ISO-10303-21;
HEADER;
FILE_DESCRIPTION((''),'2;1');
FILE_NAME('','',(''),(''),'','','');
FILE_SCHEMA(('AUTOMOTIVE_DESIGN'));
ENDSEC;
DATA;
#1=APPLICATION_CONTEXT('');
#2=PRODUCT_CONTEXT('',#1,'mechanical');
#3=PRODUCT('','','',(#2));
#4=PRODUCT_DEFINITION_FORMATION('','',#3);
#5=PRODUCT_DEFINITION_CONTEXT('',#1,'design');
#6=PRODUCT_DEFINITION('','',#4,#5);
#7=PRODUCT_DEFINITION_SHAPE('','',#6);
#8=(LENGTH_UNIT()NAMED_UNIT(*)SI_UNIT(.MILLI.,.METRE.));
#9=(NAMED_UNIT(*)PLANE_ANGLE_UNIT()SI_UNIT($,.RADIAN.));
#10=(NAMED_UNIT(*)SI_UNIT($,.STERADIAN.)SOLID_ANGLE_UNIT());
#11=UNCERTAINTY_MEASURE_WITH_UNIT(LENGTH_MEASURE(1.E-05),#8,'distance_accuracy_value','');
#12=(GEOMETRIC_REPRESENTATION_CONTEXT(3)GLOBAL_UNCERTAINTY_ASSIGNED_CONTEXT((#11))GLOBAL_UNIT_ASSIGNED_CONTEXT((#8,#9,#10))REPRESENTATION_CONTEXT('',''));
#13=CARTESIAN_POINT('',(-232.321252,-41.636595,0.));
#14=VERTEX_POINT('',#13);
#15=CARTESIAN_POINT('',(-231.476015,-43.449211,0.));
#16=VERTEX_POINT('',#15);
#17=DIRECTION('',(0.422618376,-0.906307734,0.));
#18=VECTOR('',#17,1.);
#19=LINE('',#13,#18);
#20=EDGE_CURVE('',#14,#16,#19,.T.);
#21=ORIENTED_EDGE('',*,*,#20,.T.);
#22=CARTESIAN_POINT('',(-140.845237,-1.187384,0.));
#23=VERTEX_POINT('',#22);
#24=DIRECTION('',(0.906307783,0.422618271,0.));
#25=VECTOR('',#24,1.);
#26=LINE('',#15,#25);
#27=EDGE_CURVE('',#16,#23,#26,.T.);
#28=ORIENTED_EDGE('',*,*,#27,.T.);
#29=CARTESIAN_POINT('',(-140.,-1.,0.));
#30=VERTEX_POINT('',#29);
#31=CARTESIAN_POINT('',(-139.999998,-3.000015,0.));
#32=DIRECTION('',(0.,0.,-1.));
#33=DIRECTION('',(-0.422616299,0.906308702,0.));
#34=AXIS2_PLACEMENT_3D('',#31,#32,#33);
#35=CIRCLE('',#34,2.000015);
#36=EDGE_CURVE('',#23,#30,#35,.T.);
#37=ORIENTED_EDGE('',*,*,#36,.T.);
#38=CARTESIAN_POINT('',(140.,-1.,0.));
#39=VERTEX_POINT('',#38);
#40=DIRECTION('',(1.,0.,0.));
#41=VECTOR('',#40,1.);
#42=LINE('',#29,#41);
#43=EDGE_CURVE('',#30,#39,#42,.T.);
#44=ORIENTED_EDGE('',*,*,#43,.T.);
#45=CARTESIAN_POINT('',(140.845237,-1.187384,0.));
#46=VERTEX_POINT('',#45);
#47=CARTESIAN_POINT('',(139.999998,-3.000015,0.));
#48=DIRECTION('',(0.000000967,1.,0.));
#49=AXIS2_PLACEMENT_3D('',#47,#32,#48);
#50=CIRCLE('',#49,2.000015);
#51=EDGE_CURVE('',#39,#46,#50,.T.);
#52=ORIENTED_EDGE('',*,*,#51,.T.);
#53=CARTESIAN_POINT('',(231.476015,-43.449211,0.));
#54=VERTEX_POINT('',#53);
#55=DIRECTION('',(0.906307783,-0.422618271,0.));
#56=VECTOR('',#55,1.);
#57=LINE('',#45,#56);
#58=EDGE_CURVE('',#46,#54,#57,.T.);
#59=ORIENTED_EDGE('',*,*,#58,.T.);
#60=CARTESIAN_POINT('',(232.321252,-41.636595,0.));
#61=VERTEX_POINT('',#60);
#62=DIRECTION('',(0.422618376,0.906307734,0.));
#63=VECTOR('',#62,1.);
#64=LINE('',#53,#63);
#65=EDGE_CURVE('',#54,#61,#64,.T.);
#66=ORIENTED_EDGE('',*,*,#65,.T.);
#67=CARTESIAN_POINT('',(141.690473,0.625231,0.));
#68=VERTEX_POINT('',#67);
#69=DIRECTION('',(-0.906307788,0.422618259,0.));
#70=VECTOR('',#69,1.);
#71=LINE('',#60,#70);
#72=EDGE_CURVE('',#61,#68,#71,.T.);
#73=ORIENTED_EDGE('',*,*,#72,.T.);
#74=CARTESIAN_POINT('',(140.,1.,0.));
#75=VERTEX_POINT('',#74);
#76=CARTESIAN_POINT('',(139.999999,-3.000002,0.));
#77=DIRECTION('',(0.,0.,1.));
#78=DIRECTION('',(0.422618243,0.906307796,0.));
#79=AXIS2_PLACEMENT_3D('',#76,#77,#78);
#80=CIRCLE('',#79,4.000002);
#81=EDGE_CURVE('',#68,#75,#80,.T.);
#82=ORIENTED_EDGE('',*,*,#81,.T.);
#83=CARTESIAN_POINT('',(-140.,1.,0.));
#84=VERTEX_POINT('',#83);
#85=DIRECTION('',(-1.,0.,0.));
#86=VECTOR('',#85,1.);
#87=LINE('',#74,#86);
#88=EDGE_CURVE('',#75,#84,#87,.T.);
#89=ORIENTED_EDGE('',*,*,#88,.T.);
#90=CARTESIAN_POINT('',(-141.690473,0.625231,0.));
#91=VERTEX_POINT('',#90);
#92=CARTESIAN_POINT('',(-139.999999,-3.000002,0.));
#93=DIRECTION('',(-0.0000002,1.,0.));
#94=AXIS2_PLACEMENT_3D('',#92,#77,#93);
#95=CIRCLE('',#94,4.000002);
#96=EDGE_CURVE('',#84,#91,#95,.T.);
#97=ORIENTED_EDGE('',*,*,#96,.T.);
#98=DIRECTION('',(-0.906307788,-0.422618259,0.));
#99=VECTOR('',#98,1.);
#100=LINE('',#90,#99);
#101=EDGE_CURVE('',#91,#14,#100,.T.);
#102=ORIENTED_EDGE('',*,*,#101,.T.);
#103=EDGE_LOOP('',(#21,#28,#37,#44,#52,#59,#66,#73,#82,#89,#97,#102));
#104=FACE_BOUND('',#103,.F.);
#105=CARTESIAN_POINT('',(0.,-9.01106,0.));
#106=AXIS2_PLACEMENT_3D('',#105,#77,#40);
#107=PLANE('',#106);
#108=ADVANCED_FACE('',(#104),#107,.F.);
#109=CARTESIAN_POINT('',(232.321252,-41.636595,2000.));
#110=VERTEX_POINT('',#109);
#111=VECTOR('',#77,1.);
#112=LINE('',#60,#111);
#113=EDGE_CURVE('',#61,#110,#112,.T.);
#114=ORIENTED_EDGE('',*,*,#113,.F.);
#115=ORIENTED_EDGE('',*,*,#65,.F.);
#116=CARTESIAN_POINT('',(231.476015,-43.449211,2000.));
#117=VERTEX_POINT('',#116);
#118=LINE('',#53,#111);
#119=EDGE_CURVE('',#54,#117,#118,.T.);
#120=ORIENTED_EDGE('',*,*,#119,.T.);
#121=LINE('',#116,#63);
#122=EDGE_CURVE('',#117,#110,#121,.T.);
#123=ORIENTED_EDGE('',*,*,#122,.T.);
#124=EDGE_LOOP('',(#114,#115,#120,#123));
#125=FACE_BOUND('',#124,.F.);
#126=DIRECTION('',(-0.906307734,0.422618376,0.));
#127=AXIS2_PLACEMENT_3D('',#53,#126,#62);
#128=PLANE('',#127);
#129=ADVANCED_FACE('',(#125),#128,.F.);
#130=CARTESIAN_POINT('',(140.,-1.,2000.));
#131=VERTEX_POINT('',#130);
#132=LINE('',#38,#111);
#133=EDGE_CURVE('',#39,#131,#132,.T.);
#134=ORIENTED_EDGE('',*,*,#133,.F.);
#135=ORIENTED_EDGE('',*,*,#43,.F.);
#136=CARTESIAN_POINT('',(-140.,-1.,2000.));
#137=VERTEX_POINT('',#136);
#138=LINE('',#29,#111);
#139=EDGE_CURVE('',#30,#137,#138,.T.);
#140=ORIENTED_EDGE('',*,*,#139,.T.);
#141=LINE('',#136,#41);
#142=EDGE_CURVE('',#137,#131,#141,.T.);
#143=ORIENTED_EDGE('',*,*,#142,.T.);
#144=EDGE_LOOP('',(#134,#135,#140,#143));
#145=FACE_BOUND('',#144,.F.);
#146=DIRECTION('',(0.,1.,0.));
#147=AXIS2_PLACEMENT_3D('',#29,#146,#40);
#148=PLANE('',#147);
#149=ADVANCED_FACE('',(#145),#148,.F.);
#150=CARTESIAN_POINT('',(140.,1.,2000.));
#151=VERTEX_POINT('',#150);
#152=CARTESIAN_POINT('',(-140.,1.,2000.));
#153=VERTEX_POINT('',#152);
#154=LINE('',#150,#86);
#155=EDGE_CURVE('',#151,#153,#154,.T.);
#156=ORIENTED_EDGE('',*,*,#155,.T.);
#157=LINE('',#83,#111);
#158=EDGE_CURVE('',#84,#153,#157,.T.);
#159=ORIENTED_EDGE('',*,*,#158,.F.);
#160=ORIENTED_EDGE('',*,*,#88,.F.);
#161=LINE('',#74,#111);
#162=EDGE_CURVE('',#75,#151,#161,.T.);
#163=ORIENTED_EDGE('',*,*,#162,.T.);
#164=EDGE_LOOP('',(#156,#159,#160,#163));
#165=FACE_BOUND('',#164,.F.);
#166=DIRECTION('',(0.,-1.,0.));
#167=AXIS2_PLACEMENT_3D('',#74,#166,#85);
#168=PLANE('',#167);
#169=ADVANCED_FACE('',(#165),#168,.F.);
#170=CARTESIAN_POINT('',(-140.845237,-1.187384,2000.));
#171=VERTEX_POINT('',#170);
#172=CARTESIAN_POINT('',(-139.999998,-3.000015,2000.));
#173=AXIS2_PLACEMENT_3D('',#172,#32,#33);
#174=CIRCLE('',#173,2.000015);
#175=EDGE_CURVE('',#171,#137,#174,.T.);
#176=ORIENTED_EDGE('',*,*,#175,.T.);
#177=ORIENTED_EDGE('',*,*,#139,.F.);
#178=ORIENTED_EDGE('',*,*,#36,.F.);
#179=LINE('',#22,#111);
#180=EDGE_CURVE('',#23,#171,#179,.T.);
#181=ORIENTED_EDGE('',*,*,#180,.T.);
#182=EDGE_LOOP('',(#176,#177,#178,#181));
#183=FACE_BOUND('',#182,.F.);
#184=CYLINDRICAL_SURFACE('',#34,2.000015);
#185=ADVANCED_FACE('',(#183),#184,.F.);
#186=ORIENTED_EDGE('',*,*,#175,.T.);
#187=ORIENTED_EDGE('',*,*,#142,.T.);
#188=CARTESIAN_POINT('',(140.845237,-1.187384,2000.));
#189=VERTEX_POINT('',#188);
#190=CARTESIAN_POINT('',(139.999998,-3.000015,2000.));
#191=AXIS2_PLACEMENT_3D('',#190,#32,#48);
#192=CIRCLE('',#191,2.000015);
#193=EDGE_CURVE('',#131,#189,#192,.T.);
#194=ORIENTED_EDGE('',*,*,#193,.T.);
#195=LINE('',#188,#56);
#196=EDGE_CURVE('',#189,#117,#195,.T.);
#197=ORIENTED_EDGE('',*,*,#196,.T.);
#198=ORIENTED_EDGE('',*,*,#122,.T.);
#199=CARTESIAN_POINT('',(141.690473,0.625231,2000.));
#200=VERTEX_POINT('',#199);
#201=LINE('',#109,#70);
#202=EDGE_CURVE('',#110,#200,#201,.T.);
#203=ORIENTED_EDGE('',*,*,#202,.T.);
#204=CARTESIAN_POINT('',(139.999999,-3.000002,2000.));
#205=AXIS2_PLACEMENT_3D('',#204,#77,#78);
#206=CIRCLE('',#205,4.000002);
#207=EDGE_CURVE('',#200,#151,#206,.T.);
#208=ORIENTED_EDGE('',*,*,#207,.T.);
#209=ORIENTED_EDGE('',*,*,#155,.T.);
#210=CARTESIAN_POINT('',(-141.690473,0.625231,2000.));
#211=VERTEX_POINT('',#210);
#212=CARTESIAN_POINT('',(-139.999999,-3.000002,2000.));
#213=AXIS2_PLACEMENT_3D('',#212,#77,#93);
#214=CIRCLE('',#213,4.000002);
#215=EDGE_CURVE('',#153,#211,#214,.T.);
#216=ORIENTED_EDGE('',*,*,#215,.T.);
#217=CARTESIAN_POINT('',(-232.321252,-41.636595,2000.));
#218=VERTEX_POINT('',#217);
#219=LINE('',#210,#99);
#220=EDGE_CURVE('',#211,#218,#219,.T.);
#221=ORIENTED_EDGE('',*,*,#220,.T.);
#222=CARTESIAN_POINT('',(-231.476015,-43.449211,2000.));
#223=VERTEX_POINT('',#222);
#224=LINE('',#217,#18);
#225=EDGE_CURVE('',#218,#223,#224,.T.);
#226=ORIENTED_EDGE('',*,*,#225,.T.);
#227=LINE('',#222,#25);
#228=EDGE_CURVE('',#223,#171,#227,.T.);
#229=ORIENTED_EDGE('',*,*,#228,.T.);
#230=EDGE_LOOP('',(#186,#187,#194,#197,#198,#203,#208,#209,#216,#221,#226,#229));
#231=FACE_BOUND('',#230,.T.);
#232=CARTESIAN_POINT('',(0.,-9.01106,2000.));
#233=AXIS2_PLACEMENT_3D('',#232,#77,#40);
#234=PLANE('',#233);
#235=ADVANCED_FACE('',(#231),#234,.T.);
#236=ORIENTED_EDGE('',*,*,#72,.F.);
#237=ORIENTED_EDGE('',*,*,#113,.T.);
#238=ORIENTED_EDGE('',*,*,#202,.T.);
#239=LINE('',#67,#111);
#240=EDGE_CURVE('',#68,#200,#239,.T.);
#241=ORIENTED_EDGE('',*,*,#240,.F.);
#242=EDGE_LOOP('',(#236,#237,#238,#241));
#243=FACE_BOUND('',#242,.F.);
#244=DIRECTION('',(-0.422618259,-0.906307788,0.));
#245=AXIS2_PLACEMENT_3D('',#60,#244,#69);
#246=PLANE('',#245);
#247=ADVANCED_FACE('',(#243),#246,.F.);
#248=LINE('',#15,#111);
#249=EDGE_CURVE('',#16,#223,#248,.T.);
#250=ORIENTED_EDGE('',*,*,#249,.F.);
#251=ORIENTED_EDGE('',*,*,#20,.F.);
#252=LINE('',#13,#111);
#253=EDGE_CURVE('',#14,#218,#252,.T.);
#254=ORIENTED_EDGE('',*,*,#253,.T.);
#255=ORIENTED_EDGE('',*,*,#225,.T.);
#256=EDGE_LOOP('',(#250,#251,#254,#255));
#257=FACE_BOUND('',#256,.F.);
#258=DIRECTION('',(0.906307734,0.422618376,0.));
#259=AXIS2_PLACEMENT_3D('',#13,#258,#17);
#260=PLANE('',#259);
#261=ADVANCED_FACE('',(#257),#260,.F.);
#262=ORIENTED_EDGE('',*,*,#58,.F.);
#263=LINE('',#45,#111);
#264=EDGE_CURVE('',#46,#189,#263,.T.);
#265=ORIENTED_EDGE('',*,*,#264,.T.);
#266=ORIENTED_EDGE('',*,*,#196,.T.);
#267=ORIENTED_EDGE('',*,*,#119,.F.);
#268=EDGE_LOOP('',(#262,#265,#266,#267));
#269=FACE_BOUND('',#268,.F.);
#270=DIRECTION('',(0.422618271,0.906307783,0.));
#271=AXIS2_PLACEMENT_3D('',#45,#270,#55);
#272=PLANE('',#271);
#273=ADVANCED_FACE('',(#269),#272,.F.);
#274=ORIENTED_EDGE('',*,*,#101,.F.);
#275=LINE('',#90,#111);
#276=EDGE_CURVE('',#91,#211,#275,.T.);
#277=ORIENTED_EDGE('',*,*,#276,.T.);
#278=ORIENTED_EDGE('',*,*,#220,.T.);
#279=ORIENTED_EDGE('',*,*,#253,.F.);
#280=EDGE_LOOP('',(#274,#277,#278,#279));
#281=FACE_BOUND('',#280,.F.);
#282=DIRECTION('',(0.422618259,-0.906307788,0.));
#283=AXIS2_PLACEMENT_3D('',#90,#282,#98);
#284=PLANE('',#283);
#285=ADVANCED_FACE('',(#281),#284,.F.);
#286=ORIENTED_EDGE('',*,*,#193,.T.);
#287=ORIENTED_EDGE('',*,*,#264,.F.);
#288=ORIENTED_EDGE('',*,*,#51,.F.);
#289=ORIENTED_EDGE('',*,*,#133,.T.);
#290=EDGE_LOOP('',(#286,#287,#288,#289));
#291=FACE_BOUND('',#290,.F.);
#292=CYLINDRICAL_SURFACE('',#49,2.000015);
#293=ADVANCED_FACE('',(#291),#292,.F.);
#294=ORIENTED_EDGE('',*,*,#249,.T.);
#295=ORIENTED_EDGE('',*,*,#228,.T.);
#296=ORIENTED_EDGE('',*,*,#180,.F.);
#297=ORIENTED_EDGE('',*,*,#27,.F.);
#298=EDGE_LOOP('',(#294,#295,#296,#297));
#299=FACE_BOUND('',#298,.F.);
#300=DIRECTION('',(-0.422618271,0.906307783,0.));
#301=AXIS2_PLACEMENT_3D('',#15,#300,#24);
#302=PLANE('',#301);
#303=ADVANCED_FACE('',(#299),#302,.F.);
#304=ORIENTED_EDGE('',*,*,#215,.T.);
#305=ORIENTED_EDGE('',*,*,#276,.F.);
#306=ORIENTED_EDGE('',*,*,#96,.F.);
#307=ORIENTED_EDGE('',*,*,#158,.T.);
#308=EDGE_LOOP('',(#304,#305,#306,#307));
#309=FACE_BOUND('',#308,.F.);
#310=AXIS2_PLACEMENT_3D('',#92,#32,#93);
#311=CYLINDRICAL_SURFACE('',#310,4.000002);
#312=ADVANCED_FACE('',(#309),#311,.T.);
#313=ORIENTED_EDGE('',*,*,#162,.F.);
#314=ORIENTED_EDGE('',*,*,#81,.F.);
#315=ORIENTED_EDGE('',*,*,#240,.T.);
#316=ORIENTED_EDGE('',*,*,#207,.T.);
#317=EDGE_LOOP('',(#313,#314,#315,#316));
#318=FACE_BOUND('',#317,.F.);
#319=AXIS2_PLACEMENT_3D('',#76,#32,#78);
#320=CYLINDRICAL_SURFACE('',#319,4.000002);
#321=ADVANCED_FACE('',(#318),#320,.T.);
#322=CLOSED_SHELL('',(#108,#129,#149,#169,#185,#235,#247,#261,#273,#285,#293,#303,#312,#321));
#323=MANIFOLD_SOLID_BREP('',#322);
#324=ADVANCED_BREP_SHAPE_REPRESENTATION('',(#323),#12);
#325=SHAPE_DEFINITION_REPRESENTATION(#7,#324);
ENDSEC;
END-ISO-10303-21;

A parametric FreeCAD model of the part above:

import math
import FreeCAD as App
import Part
import Sketcher

V = App.Vector
Q = App.Units.Quantity

doc = App.newDocument("Part")
body = doc.addObject("PartDesign::Body", "Body")

# Sketch on XY plane
sketch1 = body.newObject("Sketcher::SketchObject", "Sketch")
sketch1.AttachmentSupport = (doc.getObject("XY_Plane"), [""])
sketch1.MapMode = "FlatFace"
sketch1.addGeometry(Part.LineSegment(V(140, 1, 0), V(-140, 1, 0)), False)
sketch1.addGeometry(Part.ArcOfCircle(Part.Circle(V(-139.999999, -3.000002, 0), V(0, 0, 1), 4.000002), math.radians(90.000011), math.radians(114.999999)), False)
sketch1.addGeometry(Part.LineSegment(V(-141.690473, 0.625231, 0), V(-232.321252, -41.636595, 0)), False)
sketch1.addGeometry(Part.LineSegment(V(-232.321252, -41.636595, 0), V(-231.476015, -43.449211, 0)), False)
sketch1.addGeometry(Part.LineSegment(V(-231.476015, -43.449211, 0), V(-140.845237, -1.187384, 0)), False)
sketch1.addGeometry(Part.ArcOfCircle(Part.Circle(V(-139.999998, -3.000015, 0), V(0, 0, 1), 2.000015), math.radians(90.000055), math.radians(114.999876)), False)
sketch1.addGeometry(Part.LineSegment(V(-140, -1, 0), V(140, -1, 0)), False)
sketch1.addGeometry(Part.ArcOfCircle(Part.Circle(V(139.999998, -3.000015, 0), V(0, 0, 1), 2.000015), math.radians(65.000124), math.radians(89.999945)), False)
sketch1.addGeometry(Part.LineSegment(V(140.845237, -1.187384, 0), V(231.476015, -43.449211, 0)), False)
sketch1.addGeometry(Part.LineSegment(V(231.476015, -43.449211, 0), V(232.321252, -41.636595, 0)), False)
sketch1.addGeometry(Part.LineSegment(V(232.321252, -41.636595, 0), V(141.690473, 0.625231, 0)), False)
sketch1.addGeometry(Part.ArcOfCircle(Part.Circle(V(139.999999, -3.000002, 0), V(0, 0, 1), 4.000002), math.radians(65.000001), math.radians(89.999989)), False)
sketch1.addConstraint(Sketcher.Constraint("Coincident", 0, 2, 1, 1))
sketch1.addConstraint(Sketcher.Constraint("Coincident", 1, 2, 2, 1))
sketch1.addConstraint(Sketcher.Constraint("Coincident", 2, 2, 3, 1))
sketch1.addConstraint(Sketcher.Constraint("Coincident", 3, 2, 4, 1))
sketch1.addConstraint(Sketcher.Constraint("Coincident", 4, 2, 5, 2))
sketch1.addConstraint(Sketcher.Constraint("Coincident", 5, 1, 6, 1))
sketch1.addConstraint(Sketcher.Constraint("Coincident", 6, 2, 7, 2))
sketch1.addConstraint(Sketcher.Constraint("Coincident", 7, 1, 8, 1))
sketch1.addConstraint(Sketcher.Constraint("Coincident", 8, 2, 9, 1))
sketch1.addConstraint(Sketcher.Constraint("Coincident", 9, 2, 10, 1))
sketch1.addConstraint(Sketcher.Constraint("Coincident", 10, 2, 11, 1))
sketch1.addConstraint(Sketcher.Constraint("Coincident", 11, 2, 0, 1))
sketch1.addConstraint(Sketcher.Constraint("Horizontal", 0))
sketch1.addConstraint(Sketcher.Constraint("Horizontal", 6))
sketch1.addConstraint(Sketcher.Constraint("Radius", 1, Q("4.000002 mm")))
sketch1.addConstraint(Sketcher.Constraint("Radius", 11, Q("4.000002 mm")))
sketch1.addConstraint(Sketcher.Constraint("DistanceX", 0, 2, 0, 1, Q("280 mm")))
sketch1.addConstraint(Sketcher.Constraint("DistanceX", 6, 1, 6, 2, Q("280 mm")))
sketch1.addConstraint(Sketcher.Constraint("Distance", 2, Q("100 mm")))
sketch1.addConstraint(Sketcher.Constraint("Distance", 3, Q("2.000001 mm")))
sketch1.addConstraint(Sketcher.Constraint("Distance", 4, Q("100 mm")))
sketch1.addConstraint(Sketcher.Constraint("Distance", 8, Q("100 mm")))
sketch1.addConstraint(Sketcher.Constraint("Distance", 9, Q("2.000001 mm")))
sketch1.addConstraint(Sketcher.Constraint("Distance", 10, Q("100 mm")))
sketch1.addConstraint(Sketcher.Constraint("DistanceX", 1, 3, -1, 1, Q("139.999999 mm")))
sketch1.addConstraint(Sketcher.Constraint("DistanceY", 1, 3, -1, 1, Q("3.000002 mm")))
sketch1.addConstraint(Sketcher.Constraint("DistanceX", 5, 3, -1, 1, Q("139.999998 mm")))
sketch1.addConstraint(Sketcher.Constraint("DistanceX", -1, 1, 7, 3, Q("139.999998 mm")))
sketch1.addConstraint(Sketcher.Constraint("DistanceX", -1, 1, 11, 3, Q("139.999999 mm")))
sketch1.addConstraint(Sketcher.Constraint("DistanceX", 0, 2, -1, 1, Q("140 mm")))
sketch1.addConstraint(Sketcher.Constraint("DistanceX", 5, 1, -1, 1, Q("140 mm")))
sketch1.addConstraint(Sketcher.Constraint("DistanceY", 5, 1, -1, 1, Q("1 mm")))
sketch1.addConstraint(Sketcher.Constraint("Radius", 5, Q("2.000015 mm")))
sketch1.addConstraint(Sketcher.Constraint("Radius", 7, Q("2.000015 mm")))
sketch1.addConstraint(Sketcher.Constraint("DistanceY", -1, 1, 1, 2, Q("0.625231 mm")))
sketch1.addConstraint(Sketcher.Constraint("DistanceX", 2, 2, -1, 1, Q("232.321252 mm")))
sketch1.addConstraint(Sketcher.Constraint("DistanceY", 3, 2, -1, 1, Q("43.449211 mm")))
sketch1.addConstraint(Sketcher.Constraint("DistanceY", 8, 2, -1, 1, Q("43.449211 mm")))
sketch1.addConstraint(Sketcher.Constraint("DistanceX", -1, 1, 9, 2, Q("232.321252 mm")))
sketch1.addConstraint(Sketcher.Constraint("DistanceY", -1, 1, 10, 2, Q("0.625231 mm")))
pad1 = body.newObject("PartDesign::Pad", "Pad")
pad1.Profile = sketch1
pad1.Length = 2000

doc.recompute()
